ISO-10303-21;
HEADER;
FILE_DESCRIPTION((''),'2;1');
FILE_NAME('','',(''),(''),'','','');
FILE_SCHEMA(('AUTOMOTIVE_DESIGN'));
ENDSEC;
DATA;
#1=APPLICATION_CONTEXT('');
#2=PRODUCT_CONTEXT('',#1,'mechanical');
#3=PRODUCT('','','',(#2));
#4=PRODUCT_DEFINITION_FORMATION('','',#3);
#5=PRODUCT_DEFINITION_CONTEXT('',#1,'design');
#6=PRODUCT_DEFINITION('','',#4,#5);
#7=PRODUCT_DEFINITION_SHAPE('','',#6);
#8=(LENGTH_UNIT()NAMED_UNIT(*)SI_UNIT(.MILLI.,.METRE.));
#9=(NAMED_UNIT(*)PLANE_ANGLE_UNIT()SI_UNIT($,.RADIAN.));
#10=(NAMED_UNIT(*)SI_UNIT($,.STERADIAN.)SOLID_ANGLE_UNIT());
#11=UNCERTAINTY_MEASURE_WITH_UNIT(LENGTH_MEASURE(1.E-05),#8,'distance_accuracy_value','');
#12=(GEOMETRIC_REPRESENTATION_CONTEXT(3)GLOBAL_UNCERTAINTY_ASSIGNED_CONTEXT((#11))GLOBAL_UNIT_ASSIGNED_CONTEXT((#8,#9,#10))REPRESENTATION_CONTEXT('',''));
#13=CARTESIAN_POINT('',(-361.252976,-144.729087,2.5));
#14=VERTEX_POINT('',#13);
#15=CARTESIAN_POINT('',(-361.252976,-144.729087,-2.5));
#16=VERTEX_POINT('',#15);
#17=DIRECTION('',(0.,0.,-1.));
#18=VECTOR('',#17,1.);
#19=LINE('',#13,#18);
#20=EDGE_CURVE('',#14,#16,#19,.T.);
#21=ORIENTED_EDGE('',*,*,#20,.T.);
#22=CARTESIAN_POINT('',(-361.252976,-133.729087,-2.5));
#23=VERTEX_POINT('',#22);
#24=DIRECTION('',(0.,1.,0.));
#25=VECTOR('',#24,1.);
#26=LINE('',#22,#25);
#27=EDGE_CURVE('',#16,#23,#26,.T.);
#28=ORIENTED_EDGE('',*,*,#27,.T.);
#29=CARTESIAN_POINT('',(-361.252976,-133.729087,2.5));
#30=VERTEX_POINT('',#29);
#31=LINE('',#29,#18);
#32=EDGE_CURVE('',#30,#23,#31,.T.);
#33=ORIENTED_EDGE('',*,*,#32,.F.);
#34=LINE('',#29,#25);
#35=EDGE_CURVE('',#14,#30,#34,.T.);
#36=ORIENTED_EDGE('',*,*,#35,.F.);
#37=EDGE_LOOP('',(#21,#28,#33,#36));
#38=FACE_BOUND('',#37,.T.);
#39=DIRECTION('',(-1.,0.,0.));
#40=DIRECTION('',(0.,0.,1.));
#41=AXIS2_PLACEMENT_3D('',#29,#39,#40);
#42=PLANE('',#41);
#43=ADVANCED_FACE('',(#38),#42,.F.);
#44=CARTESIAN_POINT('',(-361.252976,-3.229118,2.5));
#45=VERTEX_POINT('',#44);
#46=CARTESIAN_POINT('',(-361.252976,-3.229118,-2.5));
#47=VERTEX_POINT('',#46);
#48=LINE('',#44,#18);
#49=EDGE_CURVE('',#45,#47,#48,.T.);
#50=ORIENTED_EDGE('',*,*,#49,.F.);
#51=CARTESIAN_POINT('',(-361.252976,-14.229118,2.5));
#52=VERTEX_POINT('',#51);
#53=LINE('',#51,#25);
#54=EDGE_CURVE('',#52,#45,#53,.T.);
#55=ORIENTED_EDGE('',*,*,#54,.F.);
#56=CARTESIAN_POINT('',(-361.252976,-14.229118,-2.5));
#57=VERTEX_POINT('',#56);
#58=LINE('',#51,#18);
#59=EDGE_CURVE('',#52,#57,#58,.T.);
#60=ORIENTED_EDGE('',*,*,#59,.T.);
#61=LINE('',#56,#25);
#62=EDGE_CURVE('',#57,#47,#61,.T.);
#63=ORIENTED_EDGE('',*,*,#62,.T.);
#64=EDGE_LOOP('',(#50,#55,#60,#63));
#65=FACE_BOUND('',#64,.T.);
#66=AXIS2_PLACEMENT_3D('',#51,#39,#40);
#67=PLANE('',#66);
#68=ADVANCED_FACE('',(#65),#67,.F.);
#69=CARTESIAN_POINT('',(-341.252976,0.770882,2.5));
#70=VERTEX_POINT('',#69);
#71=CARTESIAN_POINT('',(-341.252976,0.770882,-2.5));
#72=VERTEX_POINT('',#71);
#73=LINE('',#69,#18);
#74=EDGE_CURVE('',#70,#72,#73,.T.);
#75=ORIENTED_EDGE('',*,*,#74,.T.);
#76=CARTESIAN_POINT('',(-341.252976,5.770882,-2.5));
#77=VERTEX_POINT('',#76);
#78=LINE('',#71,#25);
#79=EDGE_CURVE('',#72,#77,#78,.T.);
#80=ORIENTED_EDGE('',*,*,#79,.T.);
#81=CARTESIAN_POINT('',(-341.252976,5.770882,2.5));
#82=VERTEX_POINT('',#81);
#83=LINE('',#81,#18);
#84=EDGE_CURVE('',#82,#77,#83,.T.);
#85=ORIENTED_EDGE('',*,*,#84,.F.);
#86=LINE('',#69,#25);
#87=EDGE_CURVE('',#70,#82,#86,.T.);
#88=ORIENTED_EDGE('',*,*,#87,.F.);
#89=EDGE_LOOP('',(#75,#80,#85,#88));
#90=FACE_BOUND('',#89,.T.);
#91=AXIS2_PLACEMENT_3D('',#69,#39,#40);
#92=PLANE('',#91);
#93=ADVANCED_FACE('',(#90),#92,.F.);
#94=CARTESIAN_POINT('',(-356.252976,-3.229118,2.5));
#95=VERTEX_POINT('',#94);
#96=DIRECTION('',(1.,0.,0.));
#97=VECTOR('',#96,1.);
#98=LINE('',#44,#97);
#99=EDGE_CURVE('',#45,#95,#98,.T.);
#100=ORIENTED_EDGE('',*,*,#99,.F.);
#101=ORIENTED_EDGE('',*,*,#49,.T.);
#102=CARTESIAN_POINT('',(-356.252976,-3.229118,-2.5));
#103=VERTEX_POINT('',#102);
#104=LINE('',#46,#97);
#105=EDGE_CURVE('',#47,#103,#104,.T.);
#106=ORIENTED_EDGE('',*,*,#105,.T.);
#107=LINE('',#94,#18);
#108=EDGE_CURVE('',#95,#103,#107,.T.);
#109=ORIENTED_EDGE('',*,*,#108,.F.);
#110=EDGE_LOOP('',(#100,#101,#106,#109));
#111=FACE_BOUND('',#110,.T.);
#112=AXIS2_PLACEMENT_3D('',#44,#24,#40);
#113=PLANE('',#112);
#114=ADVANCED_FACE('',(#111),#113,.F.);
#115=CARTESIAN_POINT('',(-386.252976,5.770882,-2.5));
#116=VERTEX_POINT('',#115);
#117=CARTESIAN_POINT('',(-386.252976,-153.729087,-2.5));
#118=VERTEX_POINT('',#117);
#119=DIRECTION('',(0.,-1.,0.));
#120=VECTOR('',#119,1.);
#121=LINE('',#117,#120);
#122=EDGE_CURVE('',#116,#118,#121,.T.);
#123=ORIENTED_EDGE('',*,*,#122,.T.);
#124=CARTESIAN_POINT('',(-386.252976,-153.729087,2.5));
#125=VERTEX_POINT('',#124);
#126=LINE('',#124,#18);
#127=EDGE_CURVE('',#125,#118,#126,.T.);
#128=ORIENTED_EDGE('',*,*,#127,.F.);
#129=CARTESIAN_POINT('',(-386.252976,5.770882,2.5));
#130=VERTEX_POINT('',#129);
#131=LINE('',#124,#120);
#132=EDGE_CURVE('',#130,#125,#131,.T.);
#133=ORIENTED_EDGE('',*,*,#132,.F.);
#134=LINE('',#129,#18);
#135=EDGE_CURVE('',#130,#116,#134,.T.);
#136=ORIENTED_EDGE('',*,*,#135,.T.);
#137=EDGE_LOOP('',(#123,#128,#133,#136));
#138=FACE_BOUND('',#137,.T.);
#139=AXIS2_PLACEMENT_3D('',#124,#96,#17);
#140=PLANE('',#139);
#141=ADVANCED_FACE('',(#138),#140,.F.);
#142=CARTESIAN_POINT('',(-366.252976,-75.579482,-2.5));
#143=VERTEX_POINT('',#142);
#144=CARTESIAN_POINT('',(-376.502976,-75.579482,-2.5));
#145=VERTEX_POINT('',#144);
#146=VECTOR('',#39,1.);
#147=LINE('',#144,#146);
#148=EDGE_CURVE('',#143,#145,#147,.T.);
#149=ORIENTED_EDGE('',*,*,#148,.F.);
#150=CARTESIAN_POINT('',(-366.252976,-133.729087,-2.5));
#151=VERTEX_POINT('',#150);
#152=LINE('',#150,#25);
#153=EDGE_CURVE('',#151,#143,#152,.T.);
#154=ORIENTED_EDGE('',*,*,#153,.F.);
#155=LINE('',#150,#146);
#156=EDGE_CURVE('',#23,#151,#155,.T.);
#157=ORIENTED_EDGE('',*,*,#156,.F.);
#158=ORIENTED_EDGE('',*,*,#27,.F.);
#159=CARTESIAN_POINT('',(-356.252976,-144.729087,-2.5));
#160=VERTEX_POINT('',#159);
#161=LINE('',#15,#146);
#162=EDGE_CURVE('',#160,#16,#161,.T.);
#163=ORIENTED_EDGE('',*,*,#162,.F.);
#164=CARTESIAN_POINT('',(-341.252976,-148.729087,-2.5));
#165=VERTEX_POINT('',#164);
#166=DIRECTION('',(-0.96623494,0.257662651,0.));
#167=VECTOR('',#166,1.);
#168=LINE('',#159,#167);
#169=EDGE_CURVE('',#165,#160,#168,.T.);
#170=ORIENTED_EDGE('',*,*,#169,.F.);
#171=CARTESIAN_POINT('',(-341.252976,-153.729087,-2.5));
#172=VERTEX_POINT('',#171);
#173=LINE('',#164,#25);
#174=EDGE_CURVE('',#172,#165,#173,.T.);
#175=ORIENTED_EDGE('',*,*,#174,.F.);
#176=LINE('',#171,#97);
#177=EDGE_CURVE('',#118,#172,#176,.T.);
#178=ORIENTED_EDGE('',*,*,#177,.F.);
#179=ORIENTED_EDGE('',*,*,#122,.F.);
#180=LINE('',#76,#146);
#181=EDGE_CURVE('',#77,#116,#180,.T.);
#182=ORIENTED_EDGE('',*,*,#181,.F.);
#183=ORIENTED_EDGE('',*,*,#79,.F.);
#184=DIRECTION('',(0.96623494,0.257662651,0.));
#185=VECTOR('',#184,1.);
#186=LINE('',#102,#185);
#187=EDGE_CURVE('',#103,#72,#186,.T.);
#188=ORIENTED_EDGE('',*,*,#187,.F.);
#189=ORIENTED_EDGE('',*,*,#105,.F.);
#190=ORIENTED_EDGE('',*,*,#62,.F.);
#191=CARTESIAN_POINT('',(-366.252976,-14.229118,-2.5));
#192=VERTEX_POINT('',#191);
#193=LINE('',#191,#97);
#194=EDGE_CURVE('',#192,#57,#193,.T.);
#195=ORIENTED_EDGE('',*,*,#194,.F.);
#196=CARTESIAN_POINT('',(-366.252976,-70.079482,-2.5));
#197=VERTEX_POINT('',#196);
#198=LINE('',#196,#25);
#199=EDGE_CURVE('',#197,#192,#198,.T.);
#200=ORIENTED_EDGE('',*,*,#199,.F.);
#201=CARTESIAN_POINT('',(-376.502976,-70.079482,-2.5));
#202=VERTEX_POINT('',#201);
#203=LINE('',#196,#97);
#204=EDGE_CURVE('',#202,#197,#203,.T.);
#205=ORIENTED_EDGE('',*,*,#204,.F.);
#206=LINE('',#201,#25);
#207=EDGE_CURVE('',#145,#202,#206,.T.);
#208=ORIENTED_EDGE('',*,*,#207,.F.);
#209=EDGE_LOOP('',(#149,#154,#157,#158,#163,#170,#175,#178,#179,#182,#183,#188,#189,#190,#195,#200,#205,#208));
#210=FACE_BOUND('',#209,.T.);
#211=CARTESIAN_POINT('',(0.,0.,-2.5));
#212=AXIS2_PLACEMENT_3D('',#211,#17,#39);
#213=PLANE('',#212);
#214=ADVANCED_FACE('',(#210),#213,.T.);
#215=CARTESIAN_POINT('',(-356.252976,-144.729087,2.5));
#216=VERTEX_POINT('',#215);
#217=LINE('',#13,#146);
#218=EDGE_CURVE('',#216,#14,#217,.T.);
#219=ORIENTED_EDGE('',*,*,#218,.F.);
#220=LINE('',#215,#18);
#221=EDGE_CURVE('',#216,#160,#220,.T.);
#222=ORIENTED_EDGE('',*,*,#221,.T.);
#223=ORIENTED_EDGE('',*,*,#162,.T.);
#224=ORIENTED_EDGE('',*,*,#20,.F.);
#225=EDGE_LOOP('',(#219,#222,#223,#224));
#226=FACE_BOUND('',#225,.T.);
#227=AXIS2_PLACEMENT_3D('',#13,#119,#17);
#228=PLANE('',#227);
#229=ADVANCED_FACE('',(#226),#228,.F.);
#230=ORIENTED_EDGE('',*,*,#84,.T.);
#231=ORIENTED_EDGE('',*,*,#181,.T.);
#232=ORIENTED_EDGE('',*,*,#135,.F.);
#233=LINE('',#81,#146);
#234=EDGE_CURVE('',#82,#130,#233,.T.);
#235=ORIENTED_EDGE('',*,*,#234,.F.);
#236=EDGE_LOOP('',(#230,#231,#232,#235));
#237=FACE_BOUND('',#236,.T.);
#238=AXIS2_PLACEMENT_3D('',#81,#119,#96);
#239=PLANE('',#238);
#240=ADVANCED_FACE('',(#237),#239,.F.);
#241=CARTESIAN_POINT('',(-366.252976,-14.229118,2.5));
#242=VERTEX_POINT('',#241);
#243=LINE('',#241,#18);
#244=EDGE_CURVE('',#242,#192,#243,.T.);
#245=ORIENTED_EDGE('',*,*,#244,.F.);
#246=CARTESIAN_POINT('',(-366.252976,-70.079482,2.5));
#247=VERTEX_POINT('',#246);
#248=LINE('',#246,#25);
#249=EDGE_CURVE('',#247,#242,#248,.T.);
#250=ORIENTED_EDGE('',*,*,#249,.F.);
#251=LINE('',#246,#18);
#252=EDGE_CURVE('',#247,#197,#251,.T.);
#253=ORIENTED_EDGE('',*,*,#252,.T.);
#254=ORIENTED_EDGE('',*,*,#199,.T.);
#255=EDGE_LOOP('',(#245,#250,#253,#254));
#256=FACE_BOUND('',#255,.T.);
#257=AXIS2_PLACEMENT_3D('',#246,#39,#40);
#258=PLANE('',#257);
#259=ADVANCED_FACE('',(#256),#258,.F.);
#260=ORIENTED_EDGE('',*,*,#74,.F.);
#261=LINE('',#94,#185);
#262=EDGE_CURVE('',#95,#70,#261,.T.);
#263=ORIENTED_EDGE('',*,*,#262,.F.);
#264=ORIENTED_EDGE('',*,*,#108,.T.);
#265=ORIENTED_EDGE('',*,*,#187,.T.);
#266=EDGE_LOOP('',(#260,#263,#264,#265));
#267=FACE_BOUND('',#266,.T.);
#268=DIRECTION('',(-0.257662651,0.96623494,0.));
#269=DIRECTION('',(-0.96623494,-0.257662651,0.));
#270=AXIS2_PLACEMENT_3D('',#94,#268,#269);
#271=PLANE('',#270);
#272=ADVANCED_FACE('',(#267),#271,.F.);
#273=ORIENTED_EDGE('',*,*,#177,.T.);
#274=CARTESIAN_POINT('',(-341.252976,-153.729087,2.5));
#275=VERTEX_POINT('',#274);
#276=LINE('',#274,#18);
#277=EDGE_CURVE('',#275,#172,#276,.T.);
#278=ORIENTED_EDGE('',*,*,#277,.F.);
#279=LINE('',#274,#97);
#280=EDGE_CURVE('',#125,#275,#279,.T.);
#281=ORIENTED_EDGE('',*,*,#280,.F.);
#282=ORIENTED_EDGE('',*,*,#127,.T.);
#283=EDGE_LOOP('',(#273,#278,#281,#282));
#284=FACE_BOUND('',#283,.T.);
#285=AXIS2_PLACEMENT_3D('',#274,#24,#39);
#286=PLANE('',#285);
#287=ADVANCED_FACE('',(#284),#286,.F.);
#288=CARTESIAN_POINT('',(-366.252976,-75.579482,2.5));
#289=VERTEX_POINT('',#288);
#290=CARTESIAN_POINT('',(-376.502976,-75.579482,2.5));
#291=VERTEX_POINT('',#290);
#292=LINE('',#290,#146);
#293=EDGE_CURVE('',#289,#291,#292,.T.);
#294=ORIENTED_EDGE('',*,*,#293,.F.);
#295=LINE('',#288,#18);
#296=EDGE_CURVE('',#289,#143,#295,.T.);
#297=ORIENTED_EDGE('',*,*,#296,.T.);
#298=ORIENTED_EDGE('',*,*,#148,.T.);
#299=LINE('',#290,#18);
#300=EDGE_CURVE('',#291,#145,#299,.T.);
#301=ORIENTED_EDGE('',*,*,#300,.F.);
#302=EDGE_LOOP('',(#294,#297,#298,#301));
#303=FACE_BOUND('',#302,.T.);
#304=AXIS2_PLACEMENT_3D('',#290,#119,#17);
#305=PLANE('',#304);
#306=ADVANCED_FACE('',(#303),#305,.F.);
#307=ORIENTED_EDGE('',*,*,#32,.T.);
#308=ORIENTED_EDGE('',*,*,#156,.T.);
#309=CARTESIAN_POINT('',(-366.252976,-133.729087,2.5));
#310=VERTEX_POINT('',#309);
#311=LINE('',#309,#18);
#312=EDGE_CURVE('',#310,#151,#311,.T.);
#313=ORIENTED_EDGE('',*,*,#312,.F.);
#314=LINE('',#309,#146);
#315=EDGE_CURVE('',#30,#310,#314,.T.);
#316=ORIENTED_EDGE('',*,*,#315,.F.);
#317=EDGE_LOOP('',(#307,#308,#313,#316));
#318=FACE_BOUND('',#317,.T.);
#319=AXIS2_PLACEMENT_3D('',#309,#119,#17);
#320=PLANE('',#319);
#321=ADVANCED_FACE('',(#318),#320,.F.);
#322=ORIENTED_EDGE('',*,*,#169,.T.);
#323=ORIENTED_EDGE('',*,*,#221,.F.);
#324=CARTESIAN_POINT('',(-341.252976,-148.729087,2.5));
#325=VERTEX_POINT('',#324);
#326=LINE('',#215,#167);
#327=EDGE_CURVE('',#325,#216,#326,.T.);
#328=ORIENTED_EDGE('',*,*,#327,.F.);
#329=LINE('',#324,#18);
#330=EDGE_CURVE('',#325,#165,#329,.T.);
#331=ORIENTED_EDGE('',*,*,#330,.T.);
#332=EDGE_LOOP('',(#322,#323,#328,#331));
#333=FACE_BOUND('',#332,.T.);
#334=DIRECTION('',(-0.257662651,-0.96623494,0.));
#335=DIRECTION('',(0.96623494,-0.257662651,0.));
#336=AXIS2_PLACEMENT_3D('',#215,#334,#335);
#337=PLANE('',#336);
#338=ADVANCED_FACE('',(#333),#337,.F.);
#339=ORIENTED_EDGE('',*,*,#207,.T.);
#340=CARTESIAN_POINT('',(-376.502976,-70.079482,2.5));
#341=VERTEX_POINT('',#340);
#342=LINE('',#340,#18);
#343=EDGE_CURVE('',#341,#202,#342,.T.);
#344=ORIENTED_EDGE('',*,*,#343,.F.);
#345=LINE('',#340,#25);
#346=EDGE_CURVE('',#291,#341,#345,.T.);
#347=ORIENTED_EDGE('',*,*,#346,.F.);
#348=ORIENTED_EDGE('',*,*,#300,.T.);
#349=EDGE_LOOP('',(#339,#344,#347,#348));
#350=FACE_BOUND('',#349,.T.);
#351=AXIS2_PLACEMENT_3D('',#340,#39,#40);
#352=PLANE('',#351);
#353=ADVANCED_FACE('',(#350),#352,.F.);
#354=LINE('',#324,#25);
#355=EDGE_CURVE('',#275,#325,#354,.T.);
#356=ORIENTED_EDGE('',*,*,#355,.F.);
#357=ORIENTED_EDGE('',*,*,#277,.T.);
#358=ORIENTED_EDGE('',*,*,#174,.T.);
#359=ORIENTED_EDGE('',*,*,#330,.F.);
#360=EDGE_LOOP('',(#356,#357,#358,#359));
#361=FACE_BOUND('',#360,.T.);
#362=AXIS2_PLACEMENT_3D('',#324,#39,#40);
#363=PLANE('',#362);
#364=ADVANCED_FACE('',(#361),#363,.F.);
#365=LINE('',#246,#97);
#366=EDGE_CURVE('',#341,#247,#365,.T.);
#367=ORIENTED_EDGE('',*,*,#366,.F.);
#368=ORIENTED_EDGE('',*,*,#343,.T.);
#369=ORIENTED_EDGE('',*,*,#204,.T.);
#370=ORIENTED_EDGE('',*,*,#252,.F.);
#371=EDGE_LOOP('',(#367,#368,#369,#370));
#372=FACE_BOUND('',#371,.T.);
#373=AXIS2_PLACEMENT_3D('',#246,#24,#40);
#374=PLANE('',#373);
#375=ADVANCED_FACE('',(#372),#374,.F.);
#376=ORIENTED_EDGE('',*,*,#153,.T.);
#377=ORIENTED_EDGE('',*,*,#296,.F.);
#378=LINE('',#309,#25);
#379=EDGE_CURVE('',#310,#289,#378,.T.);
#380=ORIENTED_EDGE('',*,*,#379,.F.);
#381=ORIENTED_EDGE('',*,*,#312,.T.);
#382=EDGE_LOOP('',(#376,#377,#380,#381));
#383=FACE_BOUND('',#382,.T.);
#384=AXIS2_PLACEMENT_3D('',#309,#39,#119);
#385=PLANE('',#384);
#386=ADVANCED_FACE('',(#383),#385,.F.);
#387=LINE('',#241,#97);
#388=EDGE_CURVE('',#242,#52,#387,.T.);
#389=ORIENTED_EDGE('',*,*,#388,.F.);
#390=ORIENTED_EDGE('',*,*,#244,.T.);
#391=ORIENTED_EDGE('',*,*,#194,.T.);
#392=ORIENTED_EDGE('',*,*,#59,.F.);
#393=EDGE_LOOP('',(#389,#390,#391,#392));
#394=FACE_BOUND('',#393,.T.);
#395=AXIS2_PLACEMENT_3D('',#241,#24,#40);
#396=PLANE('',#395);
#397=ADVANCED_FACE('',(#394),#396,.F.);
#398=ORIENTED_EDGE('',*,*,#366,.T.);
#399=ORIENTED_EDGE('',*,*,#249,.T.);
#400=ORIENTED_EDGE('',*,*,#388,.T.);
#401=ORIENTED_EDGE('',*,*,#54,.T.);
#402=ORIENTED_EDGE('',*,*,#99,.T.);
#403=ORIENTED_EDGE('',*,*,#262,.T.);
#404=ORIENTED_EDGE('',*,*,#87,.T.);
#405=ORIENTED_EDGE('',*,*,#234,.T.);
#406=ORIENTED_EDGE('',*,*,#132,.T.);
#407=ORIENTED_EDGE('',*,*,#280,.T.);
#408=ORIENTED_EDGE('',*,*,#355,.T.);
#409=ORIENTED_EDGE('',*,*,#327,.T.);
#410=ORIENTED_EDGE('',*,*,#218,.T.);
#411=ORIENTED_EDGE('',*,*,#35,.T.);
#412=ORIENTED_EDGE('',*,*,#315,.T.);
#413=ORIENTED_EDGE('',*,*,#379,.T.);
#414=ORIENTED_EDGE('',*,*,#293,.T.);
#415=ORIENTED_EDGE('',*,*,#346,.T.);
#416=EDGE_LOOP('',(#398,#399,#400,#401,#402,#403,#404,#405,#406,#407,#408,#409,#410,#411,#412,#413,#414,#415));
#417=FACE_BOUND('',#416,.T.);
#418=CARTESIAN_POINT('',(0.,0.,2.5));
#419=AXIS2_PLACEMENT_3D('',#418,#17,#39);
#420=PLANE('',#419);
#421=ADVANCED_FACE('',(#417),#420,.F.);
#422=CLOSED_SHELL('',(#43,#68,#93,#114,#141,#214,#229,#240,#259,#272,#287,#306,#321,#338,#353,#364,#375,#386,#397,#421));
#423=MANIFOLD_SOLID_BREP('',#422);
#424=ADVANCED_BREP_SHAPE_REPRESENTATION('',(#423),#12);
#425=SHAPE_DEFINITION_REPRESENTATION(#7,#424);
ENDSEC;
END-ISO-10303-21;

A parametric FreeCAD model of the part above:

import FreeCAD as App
import Part
import Sketcher
Q = App.Units.Quantity


def add_polygon(sketch, points):
    """Adds a closed chain of lines whose ends are joined by coincident constraints."""
    first, n = sketch.GeometryCount, len(points)
    for a, b in zip(points, points[1:] + points[:1]):
        sketch.addGeometry(Part.LineSegment(App.Vector(*a, 0), App.Vector(*b, 0)), False)
    for i in range(n):
        sketch.addConstraint(Sketcher.Constraint("Coincident", first + i, 2, first + (i + 1) % n, 1))

doc = App.newDocument("Part")
body = doc.addObject("PartDesign::Body", "Body")

# Sketch on XY plane
sketch1 = doc.addObject("Sketcher::SketchObject", "Sketch")
body.addObject(sketch1)
sketch1.AttachmentSupport = (doc.XY_Plane, [""])
sketch1.MapMode = "FlatFace"
add_polygon(sketch1, [(-377, -70), (-366, -70), (-366, -14), (-361, -14), (-361, -3), (-356, -3), (-341, 1), (-341, 6), (-386, 6), (-386, -154), (-341, -154), (-341, -149), (-356, -145), (-361, -145), (-361, -134), (-366, -134), (-366, -76), (-377, -76)])  # lines 0-17
sketch1.addConstraint(Sketcher.Constraint("Horizontal", 0))
sketch1.addConstraint(Sketcher.Constraint("Vertical", 1))
sketch1.addConstraint(Sketcher.Constraint("Horizontal", 2))
sketch1.addConstraint(Sketcher.Constraint("Vertical", 3))
sketch1.addConstraint(Sketcher.Constraint("Horizontal", 4))
sketch1.addConstraint(Sketcher.Constraint("Vertical", 6))
sketch1.addConstraint(Sketcher.Constraint("Horizontal", 7))
sketch1.addConstraint(Sketcher.Constraint("Vertical", 8))
sketch1.addConstraint(Sketcher.Constraint("Horizontal", 9))
sketch1.addConstraint(Sketcher.Constraint("Vertical", 10))
sketch1.addConstraint(Sketcher.Constraint("Horizontal", 12))
sketch1.addConstraint(Sketcher.Constraint("Vertical", 13))
sketch1.addConstraint(Sketcher.Constraint("Horizontal", 14))
sketch1.addConstraint(Sketcher.Constraint("Vertical", 15))
sketch1.addConstraint(Sketcher.Constraint("Horizontal", 16))
sketch1.addConstraint(Sketcher.Constraint("Vertical", 17))
sketch1.addConstraint(Sketcher.Constraint("Vertical", 6, 2, 9, 2))
sketch1.addConstraint(Sketcher.Constraint("Vertical", 4, 2, 11, 2))
sketch1.addConstraint(Sketcher.Constraint("Vertical", 3, 2, 12, 2))
sketch1.addConstraint(Sketcher.Constraint("Vertical", 1, 2, 14, 2))
sketch1.addConstraint(Sketcher.Constraint("Equal", 2, 4))
sketch1.addConstraint(Sketcher.Constraint("Equal", 14, 6))
sketch1.addConstraint(Sketcher.Constraint("Equal", 6, 10))
sketch1.addConstraint(Sketcher.Constraint("Equal", 3, 13))
sketch1.addConstraint(Sketcher.Constraint("Equal", 5, 11))
sketch1.addConstraint(Sketcher.Constraint("DistanceX", 2, 1, 2, 2, Q("5 mm")))
sketch1.addConstraint(Sketcher.Constraint("DistanceX", 7, 2, 7, 1, Q("45 mm")))
sketch1.addConstraint(Sketcher.Constraint("DistanceY", 3, 1, 3, 2, Q("11 mm")))
sketch1.addConstraint(Sketcher.Constraint("DistanceY", 17, 1, 17, 2, Q("5.5 mm")))
sketch1.addConstraint(Sketcher.Constraint("DistanceX", 4, 2, 5, 2, Q("15 mm")))
sketch1.addConstraint(Sketcher.Constraint("DistanceY", 4, 2, 5, 2, Q("4 mm")))
sketch1.addConstraint(Sketcher.Constraint("DistanceX", 0, 1, 0, 2, Q("10.25 mm")))
sketch1.addConstraint(Sketcher.Constraint("DistanceY", 8, 2, 8, 1, Q("159.499969 mm")))
sketch1.addConstraint(Sketcher.Constraint("DistanceY", 1, 1, 1, 2, Q("55.850364 mm")))
sketch1.addConstraint(Sketcher.Constraint("DistanceY", 0, 2, -1, 1, Q("70.079482 mm")))
sketch1.addConstraint(Sketcher.Constraint("DistanceX", 0, 2, -1, 1, Q("366.252976 mm")))
pad1 = doc.addObject("PartDesign::Pad", "Pad")
body.addObject(pad1)
pad1.Profile = sketch1
pad1.Length = 5
pad1.Midplane = True

doc.recompute()
